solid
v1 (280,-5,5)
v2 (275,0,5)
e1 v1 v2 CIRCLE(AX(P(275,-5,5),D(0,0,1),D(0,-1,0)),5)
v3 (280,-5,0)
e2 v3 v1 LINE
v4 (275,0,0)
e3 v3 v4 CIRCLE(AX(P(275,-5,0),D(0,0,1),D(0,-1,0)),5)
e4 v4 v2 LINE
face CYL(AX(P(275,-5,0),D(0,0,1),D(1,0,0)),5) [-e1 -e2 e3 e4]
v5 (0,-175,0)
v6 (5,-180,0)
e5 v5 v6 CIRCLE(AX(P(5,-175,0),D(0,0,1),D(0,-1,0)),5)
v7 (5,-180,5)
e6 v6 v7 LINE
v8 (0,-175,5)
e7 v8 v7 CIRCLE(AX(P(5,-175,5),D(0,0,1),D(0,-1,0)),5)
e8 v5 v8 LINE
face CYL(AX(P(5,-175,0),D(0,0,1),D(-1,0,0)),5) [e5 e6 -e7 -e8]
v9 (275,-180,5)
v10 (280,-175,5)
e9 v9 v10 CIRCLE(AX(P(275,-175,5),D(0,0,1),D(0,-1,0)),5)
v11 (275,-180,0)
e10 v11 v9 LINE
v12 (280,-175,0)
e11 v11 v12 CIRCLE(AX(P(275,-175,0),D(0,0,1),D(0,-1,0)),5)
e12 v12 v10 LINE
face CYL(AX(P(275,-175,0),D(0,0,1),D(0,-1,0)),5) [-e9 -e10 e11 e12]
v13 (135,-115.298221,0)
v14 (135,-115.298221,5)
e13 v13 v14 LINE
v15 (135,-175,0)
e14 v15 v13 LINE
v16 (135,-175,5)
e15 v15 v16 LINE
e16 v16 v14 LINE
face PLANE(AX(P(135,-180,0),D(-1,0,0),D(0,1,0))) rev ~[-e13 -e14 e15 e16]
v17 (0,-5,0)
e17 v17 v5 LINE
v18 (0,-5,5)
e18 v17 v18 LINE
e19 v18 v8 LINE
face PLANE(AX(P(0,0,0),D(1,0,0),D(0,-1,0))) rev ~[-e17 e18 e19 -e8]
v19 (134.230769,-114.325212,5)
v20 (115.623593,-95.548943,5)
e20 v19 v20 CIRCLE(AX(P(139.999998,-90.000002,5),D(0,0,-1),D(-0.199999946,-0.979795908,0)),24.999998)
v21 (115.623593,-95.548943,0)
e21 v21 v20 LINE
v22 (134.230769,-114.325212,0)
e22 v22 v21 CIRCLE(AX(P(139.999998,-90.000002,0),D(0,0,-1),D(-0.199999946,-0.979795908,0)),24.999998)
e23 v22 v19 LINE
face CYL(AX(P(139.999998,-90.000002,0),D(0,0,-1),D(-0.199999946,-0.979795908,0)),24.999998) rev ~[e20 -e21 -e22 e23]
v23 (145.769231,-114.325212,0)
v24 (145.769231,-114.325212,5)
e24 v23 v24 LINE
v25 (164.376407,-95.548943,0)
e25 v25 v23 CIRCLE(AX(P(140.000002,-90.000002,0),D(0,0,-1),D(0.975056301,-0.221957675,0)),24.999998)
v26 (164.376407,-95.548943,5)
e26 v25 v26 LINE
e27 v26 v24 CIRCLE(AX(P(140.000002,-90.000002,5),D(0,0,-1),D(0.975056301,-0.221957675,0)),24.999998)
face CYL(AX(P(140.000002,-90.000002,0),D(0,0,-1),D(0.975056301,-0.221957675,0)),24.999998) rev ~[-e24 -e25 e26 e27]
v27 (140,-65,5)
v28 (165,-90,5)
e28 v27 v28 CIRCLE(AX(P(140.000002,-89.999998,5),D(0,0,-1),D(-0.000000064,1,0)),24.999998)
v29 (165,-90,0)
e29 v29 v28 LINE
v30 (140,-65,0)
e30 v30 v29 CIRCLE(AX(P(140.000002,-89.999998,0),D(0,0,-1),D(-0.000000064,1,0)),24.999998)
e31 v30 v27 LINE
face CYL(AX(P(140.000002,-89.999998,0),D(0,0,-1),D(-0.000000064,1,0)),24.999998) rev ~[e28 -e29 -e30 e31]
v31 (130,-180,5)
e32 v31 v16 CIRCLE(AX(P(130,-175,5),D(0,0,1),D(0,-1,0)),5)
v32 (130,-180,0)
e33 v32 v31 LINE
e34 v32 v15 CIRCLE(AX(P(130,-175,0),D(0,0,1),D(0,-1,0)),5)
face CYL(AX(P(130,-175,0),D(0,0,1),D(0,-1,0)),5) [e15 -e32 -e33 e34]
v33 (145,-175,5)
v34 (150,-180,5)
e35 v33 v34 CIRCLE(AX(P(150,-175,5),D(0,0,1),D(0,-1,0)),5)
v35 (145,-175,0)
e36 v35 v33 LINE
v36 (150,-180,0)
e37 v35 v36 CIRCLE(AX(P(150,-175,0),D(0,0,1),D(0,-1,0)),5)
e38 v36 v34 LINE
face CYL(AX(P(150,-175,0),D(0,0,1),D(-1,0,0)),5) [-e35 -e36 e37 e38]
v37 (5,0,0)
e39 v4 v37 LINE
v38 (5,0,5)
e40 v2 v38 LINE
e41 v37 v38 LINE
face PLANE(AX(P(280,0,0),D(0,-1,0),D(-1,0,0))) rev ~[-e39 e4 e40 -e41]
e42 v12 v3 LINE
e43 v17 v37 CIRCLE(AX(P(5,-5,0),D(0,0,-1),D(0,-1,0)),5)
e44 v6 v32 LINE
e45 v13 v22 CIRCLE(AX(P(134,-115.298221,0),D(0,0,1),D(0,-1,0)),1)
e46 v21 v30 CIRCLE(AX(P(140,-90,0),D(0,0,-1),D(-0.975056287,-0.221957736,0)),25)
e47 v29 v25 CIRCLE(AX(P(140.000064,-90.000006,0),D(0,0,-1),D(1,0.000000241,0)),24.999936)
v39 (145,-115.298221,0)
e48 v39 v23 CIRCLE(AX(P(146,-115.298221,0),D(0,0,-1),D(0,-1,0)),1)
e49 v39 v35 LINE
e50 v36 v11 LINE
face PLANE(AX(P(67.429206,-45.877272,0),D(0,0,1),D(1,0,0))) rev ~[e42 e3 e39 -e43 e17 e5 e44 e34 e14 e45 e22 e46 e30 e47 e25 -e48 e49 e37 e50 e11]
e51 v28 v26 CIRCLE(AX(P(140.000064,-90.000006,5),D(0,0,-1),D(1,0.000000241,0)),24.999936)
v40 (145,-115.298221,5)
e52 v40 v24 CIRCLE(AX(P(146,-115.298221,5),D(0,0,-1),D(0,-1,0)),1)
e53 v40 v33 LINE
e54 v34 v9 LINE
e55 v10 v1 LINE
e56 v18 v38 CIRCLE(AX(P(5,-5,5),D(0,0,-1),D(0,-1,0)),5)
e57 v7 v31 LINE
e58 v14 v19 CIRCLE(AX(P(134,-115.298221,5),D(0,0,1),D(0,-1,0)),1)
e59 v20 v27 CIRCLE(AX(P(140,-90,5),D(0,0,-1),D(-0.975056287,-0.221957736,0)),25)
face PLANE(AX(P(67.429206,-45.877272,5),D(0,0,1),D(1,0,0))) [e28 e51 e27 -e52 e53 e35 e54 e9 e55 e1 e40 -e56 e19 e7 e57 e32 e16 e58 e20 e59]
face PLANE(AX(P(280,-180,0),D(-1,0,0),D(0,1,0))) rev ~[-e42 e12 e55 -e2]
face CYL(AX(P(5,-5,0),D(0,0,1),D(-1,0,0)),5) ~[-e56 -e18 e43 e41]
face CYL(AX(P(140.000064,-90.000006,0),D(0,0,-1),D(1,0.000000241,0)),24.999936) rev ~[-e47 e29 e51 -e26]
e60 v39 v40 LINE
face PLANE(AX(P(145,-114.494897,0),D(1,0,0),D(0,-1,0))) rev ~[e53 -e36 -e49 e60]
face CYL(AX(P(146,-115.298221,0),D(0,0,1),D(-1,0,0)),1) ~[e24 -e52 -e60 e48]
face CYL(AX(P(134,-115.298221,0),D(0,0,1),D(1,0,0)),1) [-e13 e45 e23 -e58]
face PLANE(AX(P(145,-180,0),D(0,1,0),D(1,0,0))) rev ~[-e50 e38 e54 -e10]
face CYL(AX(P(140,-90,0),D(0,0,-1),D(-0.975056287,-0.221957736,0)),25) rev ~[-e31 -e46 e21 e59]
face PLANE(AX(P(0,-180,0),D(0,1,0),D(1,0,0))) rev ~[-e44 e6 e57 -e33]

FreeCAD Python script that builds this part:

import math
import FreeCAD as App
import Part
import Sketcher

V = App.Vector


def edges_at(feature, points):
    """Names of the edges that pass closest to the given points."""
    edges = feature.Shape.Edges
    near = lambda p: min(range(len(edges)), key=lambda i: edges[i].distToShape(Part.Vertex(*p))[0])
    return sorted({f"Edge{near(p) + 1}" for p in points})

doc = App.newDocument("Part")
body = doc.addObject("PartDesign::Body", "Body")

# Sketch on XY plane
sketch1 = doc.addObject("Sketcher::SketchObject", "Sketch")
body.addObject(sketch1)
sketch1.AttachmentSupport = (doc.XY_Plane, [""])
sketch1.MapMode = "FlatFace"
sketch1.addGeometry(Part.LineSegment(V(0, 0, 0), V(0, -180, 0)), False)
sketch1.addGeometry(Part.LineSegment(V(0, -180, 0), V(135, -180, 0)), False)
sketch1.addGeometry(Part.LineSegment(V(135, -180, 0), V(135, -114.494897, 0)), False)
sketch1.addGeometry(Part.ArcOfCircle(Part.Circle(V(139.999998, -90.000002, 0), V(0, 0, 1), 24.999998), math.radians(-167.175957), math.radians(-101.536956)), False)
sketch1.addGeometry(Part.ArcOfCircle(Part.Circle(V(140, -90, 0), V(0, 0, 1), 25), math.radians(90), math.radians(192.824046)), False)
sketch1.addGeometry(Part.ArcOfCircle(Part.Circle(V(140.000002, -89.999998, 0), V(0, 0, 1), 24.999998), math.radians(-0.000004), math.radians(90.000004)), False)
sketch1.addGeometry(Part.ArcOfCircle(Part.Circle(V(140.000064, -90.000006, 0), V(0, 0, 1), 24.999936), math.radians(-12.824065), math.radians(0.000014)), False)
sketch1.addGeometry(Part.ArcOfCircle(Part.Circle(V(140.000002, -90.000002, 0), V(0, 0, 1), 24.999998), math.radians(-78.463044), math.radians(-12.824043)), False)
sketch1.addGeometry(Part.LineSegment(V(145, -114.494897, 0), V(145, -180, 0)), False)
sketch1.addGeometry(Part.LineSegment(V(145, -180, 0), V(280, -180, 0)), False)
sketch1.addGeometry(Part.LineSegment(V(280, -180, 0), V(280, 0, 0)), False)
sketch1.addGeometry(Part.LineSegment(V(280, 0, 0), V(0, 0, 0)), False)
sketch1.addConstraint(Sketcher.Constraint("Coincident", 0, 2, 1, 1))
sketch1.addConstraint(Sketcher.Constraint("Coincident", 1, 2, 2, 1))
sketch1.addConstraint(Sketcher.Constraint("Coincident", 2, 2, 3, 2))
sketch1.addConstraint(Sketcher.Constraint("Coincident", 3, 1, 4, 2))
sketch1.addConstraint(Sketcher.Constraint("Coincident", 4, 1, 5, 2))
sketch1.addConstraint(Sketcher.Constraint("Coincident", 5, 1, 6, 2))
sketch1.addConstraint(Sketcher.Constraint("Coincident", 6, 1, 7, 2))
sketch1.addConstraint(Sketcher.Constraint("Coincident", 7, 1, 8, 1))
sketch1.addConstraint(Sketcher.Constraint("Coincident", 8, 2, 9, 1))
sketch1.addConstraint(Sketcher.Constraint("Coincident", 9, 2, 10, 1))
sketch1.addConstraint(Sketcher.Constraint("Coincident", 10, 2, 11, 1))
sketch1.addConstraint(Sketcher.Constraint("Coincident", 11, 2, 0, 1))
sketch1.addConstraint(Sketcher.Constraint("Vertical", 0))
sketch1.addConstraint(Sketcher.Constraint("Horizontal", 1))
sketch1.addConstraint(Sketcher.Constraint("Vertical", 2))
sketch1.addConstraint(Sketcher.Constraint("Vertical", 8))
sketch1.addConstraint(Sketcher.Constraint("Horizontal", 9))
sketch1.addConstraint(Sketcher.Constraint("Vertical", 10))
sketch1.addConstraint(Sketcher.Constraint("Horizontal", 11))
sketch1.addConstraint(Sketcher.Constraint("Coincident", 11, 2, -1, 1))
sketch1.addConstraint(Sketcher.Constraint("Coincident", 4, 3, 3, 3))
sketch1.addConstraint(Sketcher.Constraint("Coincident", 5, 3, 3, 3))
sketch1.addConstraint(Sketcher.Constraint("Coincident", 7, 3, 3, 3))
sketch1.addConstraint(Sketcher.Constraint("Radius", 4, 25.0))
sketch1.addConstraint(Sketcher.Constraint("DistanceX", 1, 1, 1, 2, 135.0))
sketch1.addConstraint(Sketcher.Constraint("DistanceX", 9, 1, 9, 2, 135.0))
sketch1.addConstraint(Sketcher.Constraint("DistanceX", 11, 2, 11, 1, 280.0))
sketch1.addConstraint(Sketcher.Constraint("DistanceY", 0, 2, 0, 1, 180.0))
sketch1.addConstraint(Sketcher.Constraint("DistanceY", 10, 1, 10, 2, 180.0))
sketch1.addConstraint(Sketcher.Constraint("DistanceX", -1, 1, 3, 3, 139.999998))
sketch1.addConstraint(Sketcher.Constraint("DistanceY", 3, 3, -1, 1, 90.000002))
sketch1.addConstraint(Sketcher.Constraint("DistanceX", -1, 1, 4, 1, 140.0))
sketch1.addConstraint(Sketcher.Constraint("DistanceY", 5, 1, -1, 1, 90.0))
sketch1.addConstraint(Sketcher.Constraint("Radius", 6, 24.999936))
sketch1.addConstraint(Sketcher.Constraint("Radius", 7, 24.999998))
sketch1.addConstraint(Sketcher.Constraint("DistanceY", 3, 1, 3, 3, 5.548941))
sketch1.addConstraint(Sketcher.Constraint("DistanceY", 6, 1, 7, 3, 5.548941))
pad1 = doc.addObject("PartDesign::Pad", "Pad")
body.addObject(pad1)
pad1.Profile = sketch1
pad1.Length = 5
doc.recompute()

fillet = doc.addObject("PartDesign::Fillet", "Fillet")
body.addObject(fillet)
fillet.Base = (pad1, edges_at(pad1, [
    (135, -180, 2.5),
    (145, -180, 2.5),
    (280, -180, 2.5),
    (0, -180, 2.5),
    (280, 0, 2.5),
    (0, 0, 2.5),
]))
fillet.Radius = 5
doc.recompute()

fillet2 = doc.addObject("PartDesign::Fillet", "Fillet001")
body.addObject(fillet2)
fillet2.Base = (fillet, edges_at(fillet, [(135, -114.495, 2.5), (145, -114.495, 2.5)]))
fillet2.Radius = 1

doc.recompute()
